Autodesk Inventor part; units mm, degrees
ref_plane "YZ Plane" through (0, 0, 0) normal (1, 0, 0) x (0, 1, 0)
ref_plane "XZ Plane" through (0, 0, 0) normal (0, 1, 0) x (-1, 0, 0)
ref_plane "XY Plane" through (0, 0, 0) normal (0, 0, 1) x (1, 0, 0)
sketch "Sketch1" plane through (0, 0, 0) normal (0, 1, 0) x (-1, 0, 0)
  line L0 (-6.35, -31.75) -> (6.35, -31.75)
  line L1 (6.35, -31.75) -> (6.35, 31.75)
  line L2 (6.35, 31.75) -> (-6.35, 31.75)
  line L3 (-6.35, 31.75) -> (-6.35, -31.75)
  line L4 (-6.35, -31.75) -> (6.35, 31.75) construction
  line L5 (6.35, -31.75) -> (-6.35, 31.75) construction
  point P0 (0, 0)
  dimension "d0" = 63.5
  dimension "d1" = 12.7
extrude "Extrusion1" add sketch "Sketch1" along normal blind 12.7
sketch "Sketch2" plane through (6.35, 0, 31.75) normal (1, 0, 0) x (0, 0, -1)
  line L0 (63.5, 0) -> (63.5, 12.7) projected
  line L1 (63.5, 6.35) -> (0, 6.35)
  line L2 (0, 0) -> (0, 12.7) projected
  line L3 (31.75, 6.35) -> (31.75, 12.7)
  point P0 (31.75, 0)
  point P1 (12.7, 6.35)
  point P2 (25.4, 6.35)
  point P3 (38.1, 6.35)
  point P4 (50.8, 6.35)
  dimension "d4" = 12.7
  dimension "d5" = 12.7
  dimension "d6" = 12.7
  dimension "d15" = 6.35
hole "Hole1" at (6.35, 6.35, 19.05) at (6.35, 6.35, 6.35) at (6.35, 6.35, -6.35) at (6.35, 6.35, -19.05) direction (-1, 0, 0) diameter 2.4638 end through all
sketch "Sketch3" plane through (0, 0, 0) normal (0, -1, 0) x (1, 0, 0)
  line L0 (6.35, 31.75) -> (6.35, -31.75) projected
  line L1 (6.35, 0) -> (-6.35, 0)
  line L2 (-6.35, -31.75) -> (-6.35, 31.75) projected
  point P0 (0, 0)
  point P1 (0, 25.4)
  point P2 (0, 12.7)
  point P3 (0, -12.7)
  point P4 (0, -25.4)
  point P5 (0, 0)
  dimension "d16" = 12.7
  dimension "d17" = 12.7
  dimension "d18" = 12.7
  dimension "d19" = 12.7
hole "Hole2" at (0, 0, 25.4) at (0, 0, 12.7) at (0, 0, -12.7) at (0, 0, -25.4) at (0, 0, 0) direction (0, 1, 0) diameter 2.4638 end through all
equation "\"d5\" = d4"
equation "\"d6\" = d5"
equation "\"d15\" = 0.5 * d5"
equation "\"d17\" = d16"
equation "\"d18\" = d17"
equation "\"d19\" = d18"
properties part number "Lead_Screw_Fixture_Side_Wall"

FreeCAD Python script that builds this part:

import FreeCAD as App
import Part
import Sketcher
Q = App.Units.Quantity


def add_polygon(sketch, points):
    """Adds a closed chain of lines whose ends are joined by coincident constraints."""
    first, n = sketch.GeometryCount, len(points)
    for a, b in zip(points, points[1:] + points[:1]):
        sketch.addGeometry(Part.LineSegment(App.Vector(*a, 0), App.Vector(*b, 0)), False)
    for i in range(n):
        sketch.addConstraint(Sketcher.Constraint("Coincident", first + i, 2, first + (i + 1) % n, 1))

doc = App.newDocument("Part")
params = doc.addObject("Spreadsheet::Sheet", "Params")
for row, (alias, value) in enumerate([
    ("sketch1_width", "0.5 in"),
    ("sketch1_height", "2.5 in"),
    ("pad1_length", "0.5 in"),
    ("sketch2_diameter", "0.097 in"),
    ("hole_diameter", "0.097 in"),
    ("sketch3_diameter", "0.097 in"),
    ("hole2_diameter", "0.097 in"),
], start=1):
    params.set(f"A{row}", alias)
    params.set(f"B{row}", "=" + value)
    params.setAlias(f"B{row}", alias)

body = doc.addObject("PartDesign::Body", "Body")

sketch1 = body.newObject("Sketcher::SketchObject", "Sketch")
sketch1.AttachmentSupport = (doc.getObject("XZ_Plane"), [""])
sketch1.MapMode = "FlatFace"
add_polygon(sketch1, [(6.35, 31.75), (6.35, -31.75), (-6.35, -31.75), (-6.35, 31.75)])
sketch1.addConstraint([
    Sketcher.Constraint("Vertical", 0),
    Sketcher.Constraint("Horizontal", 1),
    Sketcher.Constraint("Vertical", 2),
    Sketcher.Constraint("Horizontal", 3),
    Sketcher.Constraint("Symmetric", 0, 2, 2, 2, -1, 1),
    Sketcher.Constraint("DistanceX", 1, 2, 1, 1, Q("0.5 in")),
    Sketcher.Constraint("DistanceY", 0, 2, 0, 1, Q("2.5 in")),
])
sketch1.setExpression("Constraints[9]", "Params.sketch1_width")
sketch1.setExpression("Constraints[10]", "Params.sketch1_height")
pad1 = body.newObject("PartDesign::Pad", "Pad")
pad1.Profile = sketch1
pad1.setExpression("Length", "Params.pad1_length")
pad1.Reversed = True

sketch2 = body.newObject("Sketcher::SketchObject", "Sketch001")
sketch2.AttachmentSupport = (doc.getObject("YZ_Plane"), [""])
sketch2.MapMode = "FlatFace"
sketch2.AttachmentOffset = App.Placement(App.Vector(0, 0, 0.25 * 25.4), App.Rotation())
sketch2.addGeometry([
    Part.Circle(App.Vector(6.35, 19.05, 0), App.Vector(0, 0, 1), 1.2319),
    Part.Circle(App.Vector(6.35, 6.35, 0), App.Vector(0, 0, 1), 1.2319),
    Part.Circle(App.Vector(6.35, -6.35, 0), App.Vector(0, 0, 1), 1.2319),
    Part.Circle(App.Vector(6.35, -19.05, 0), App.Vector(0, 0, 1), 1.2319),
], False)
sketch2.addConstraint([
    Sketcher.Constraint("Equal", 0, 1),
    Sketcher.Constraint("Equal", 1, 2),
    Sketcher.Constraint("Equal", 2, 3),
    Sketcher.Constraint("Symmetric", 1, 3, 2, 3, -1),
    Sketcher.Constraint("Symmetric", 0, 3, 3, 3, -1),
    Sketcher.Constraint("Vertical", 0, 3, 1, 3),
    Sketcher.Constraint("Diameter", 0, Q("0.097 in")),
    Sketcher.Constraint("DistanceY", 2, 3, 0, 3, Q("1 in")),
    Sketcher.Constraint("DistanceY", 1, 3, 0, 3, Q("0.5 in")),
    Sketcher.Constraint("DistanceX", -1, 1, 0, 3, Q("0.25 in")),
])
sketch2.setExpression("Constraints[6]", "Params.sketch2_diameter")
doc.recompute()
hole = body.newObject("PartDesign::Hole", "Hole")
hole.Profile = sketch2
hole.ThreadType = "None"
hole.setExpression("Diameter", "Params.hole_diameter")
hole.DepthType = "ThroughAll"

sketch3 = body.newObject("Sketcher::SketchObject", "Sketch002")
sketch3.AttachmentSupport = (doc.getObject("XZ_Plane"), [""])
sketch3.MapMode = "FlatFace"
sketch3.addGeometry([
    Part.Circle(App.Vector(0, 25.4, 0), App.Vector(0, 0, 1), 1.2319),
    Part.Circle(App.Vector(0, 12.7, 0), App.Vector(0, 0, 1), 1.2319),
    Part.Circle(App.Vector(0, -12.7, 0), App.Vector(0, 0, 1), 1.2319),
    Part.Circle(App.Vector(0, -25.4, 0), App.Vector(0, 0, 1), 1.2319),
    Part.Circle(App.Vector(0, 0, 0), App.Vector(0, 0, 1), 1.2319),
], False)
sketch3.addConstraint([
    Sketcher.Constraint("Coincident", 4, 3, -1, 1),
    Sketcher.Constraint("Equal", 0, 1),
    Sketcher.Constraint("Equal", 1, 2),
    Sketcher.Constraint("Equal", 2, 3),
    Sketcher.Constraint("Equal", 3, 4),
    Sketcher.Constraint("Symmetric", 1, 3, 2, 3, -1, 1),
    Sketcher.Constraint("Symmetric", 0, 3, 3, 3, -1, 1),
    Sketcher.Constraint("PointOnObject", 0, 3, -2),
    Sketcher.Constraint("PointOnObject", 1, 3, -2),
    Sketcher.Constraint("Diameter", 0, Q("0.097 in")),
    Sketcher.Constraint("DistanceY", -1, 1, 0, 3, Q("1 in")),
    Sketcher.Constraint("DistanceY", 2, 3, 1, 3, Q("1 in")),
])
sketch3.setExpression("Constraints[9]", "Params.sketch3_diameter")
doc.recompute()
hole2 = body.newObject("PartDesign::Hole", "Hole001")
hole2.Profile = sketch3
hole2.ThreadType = "None"
hole2.setExpression("Diameter", "Params.hole2_diameter")
hole2.DepthType = "ThroughAll"

doc.recompute()
